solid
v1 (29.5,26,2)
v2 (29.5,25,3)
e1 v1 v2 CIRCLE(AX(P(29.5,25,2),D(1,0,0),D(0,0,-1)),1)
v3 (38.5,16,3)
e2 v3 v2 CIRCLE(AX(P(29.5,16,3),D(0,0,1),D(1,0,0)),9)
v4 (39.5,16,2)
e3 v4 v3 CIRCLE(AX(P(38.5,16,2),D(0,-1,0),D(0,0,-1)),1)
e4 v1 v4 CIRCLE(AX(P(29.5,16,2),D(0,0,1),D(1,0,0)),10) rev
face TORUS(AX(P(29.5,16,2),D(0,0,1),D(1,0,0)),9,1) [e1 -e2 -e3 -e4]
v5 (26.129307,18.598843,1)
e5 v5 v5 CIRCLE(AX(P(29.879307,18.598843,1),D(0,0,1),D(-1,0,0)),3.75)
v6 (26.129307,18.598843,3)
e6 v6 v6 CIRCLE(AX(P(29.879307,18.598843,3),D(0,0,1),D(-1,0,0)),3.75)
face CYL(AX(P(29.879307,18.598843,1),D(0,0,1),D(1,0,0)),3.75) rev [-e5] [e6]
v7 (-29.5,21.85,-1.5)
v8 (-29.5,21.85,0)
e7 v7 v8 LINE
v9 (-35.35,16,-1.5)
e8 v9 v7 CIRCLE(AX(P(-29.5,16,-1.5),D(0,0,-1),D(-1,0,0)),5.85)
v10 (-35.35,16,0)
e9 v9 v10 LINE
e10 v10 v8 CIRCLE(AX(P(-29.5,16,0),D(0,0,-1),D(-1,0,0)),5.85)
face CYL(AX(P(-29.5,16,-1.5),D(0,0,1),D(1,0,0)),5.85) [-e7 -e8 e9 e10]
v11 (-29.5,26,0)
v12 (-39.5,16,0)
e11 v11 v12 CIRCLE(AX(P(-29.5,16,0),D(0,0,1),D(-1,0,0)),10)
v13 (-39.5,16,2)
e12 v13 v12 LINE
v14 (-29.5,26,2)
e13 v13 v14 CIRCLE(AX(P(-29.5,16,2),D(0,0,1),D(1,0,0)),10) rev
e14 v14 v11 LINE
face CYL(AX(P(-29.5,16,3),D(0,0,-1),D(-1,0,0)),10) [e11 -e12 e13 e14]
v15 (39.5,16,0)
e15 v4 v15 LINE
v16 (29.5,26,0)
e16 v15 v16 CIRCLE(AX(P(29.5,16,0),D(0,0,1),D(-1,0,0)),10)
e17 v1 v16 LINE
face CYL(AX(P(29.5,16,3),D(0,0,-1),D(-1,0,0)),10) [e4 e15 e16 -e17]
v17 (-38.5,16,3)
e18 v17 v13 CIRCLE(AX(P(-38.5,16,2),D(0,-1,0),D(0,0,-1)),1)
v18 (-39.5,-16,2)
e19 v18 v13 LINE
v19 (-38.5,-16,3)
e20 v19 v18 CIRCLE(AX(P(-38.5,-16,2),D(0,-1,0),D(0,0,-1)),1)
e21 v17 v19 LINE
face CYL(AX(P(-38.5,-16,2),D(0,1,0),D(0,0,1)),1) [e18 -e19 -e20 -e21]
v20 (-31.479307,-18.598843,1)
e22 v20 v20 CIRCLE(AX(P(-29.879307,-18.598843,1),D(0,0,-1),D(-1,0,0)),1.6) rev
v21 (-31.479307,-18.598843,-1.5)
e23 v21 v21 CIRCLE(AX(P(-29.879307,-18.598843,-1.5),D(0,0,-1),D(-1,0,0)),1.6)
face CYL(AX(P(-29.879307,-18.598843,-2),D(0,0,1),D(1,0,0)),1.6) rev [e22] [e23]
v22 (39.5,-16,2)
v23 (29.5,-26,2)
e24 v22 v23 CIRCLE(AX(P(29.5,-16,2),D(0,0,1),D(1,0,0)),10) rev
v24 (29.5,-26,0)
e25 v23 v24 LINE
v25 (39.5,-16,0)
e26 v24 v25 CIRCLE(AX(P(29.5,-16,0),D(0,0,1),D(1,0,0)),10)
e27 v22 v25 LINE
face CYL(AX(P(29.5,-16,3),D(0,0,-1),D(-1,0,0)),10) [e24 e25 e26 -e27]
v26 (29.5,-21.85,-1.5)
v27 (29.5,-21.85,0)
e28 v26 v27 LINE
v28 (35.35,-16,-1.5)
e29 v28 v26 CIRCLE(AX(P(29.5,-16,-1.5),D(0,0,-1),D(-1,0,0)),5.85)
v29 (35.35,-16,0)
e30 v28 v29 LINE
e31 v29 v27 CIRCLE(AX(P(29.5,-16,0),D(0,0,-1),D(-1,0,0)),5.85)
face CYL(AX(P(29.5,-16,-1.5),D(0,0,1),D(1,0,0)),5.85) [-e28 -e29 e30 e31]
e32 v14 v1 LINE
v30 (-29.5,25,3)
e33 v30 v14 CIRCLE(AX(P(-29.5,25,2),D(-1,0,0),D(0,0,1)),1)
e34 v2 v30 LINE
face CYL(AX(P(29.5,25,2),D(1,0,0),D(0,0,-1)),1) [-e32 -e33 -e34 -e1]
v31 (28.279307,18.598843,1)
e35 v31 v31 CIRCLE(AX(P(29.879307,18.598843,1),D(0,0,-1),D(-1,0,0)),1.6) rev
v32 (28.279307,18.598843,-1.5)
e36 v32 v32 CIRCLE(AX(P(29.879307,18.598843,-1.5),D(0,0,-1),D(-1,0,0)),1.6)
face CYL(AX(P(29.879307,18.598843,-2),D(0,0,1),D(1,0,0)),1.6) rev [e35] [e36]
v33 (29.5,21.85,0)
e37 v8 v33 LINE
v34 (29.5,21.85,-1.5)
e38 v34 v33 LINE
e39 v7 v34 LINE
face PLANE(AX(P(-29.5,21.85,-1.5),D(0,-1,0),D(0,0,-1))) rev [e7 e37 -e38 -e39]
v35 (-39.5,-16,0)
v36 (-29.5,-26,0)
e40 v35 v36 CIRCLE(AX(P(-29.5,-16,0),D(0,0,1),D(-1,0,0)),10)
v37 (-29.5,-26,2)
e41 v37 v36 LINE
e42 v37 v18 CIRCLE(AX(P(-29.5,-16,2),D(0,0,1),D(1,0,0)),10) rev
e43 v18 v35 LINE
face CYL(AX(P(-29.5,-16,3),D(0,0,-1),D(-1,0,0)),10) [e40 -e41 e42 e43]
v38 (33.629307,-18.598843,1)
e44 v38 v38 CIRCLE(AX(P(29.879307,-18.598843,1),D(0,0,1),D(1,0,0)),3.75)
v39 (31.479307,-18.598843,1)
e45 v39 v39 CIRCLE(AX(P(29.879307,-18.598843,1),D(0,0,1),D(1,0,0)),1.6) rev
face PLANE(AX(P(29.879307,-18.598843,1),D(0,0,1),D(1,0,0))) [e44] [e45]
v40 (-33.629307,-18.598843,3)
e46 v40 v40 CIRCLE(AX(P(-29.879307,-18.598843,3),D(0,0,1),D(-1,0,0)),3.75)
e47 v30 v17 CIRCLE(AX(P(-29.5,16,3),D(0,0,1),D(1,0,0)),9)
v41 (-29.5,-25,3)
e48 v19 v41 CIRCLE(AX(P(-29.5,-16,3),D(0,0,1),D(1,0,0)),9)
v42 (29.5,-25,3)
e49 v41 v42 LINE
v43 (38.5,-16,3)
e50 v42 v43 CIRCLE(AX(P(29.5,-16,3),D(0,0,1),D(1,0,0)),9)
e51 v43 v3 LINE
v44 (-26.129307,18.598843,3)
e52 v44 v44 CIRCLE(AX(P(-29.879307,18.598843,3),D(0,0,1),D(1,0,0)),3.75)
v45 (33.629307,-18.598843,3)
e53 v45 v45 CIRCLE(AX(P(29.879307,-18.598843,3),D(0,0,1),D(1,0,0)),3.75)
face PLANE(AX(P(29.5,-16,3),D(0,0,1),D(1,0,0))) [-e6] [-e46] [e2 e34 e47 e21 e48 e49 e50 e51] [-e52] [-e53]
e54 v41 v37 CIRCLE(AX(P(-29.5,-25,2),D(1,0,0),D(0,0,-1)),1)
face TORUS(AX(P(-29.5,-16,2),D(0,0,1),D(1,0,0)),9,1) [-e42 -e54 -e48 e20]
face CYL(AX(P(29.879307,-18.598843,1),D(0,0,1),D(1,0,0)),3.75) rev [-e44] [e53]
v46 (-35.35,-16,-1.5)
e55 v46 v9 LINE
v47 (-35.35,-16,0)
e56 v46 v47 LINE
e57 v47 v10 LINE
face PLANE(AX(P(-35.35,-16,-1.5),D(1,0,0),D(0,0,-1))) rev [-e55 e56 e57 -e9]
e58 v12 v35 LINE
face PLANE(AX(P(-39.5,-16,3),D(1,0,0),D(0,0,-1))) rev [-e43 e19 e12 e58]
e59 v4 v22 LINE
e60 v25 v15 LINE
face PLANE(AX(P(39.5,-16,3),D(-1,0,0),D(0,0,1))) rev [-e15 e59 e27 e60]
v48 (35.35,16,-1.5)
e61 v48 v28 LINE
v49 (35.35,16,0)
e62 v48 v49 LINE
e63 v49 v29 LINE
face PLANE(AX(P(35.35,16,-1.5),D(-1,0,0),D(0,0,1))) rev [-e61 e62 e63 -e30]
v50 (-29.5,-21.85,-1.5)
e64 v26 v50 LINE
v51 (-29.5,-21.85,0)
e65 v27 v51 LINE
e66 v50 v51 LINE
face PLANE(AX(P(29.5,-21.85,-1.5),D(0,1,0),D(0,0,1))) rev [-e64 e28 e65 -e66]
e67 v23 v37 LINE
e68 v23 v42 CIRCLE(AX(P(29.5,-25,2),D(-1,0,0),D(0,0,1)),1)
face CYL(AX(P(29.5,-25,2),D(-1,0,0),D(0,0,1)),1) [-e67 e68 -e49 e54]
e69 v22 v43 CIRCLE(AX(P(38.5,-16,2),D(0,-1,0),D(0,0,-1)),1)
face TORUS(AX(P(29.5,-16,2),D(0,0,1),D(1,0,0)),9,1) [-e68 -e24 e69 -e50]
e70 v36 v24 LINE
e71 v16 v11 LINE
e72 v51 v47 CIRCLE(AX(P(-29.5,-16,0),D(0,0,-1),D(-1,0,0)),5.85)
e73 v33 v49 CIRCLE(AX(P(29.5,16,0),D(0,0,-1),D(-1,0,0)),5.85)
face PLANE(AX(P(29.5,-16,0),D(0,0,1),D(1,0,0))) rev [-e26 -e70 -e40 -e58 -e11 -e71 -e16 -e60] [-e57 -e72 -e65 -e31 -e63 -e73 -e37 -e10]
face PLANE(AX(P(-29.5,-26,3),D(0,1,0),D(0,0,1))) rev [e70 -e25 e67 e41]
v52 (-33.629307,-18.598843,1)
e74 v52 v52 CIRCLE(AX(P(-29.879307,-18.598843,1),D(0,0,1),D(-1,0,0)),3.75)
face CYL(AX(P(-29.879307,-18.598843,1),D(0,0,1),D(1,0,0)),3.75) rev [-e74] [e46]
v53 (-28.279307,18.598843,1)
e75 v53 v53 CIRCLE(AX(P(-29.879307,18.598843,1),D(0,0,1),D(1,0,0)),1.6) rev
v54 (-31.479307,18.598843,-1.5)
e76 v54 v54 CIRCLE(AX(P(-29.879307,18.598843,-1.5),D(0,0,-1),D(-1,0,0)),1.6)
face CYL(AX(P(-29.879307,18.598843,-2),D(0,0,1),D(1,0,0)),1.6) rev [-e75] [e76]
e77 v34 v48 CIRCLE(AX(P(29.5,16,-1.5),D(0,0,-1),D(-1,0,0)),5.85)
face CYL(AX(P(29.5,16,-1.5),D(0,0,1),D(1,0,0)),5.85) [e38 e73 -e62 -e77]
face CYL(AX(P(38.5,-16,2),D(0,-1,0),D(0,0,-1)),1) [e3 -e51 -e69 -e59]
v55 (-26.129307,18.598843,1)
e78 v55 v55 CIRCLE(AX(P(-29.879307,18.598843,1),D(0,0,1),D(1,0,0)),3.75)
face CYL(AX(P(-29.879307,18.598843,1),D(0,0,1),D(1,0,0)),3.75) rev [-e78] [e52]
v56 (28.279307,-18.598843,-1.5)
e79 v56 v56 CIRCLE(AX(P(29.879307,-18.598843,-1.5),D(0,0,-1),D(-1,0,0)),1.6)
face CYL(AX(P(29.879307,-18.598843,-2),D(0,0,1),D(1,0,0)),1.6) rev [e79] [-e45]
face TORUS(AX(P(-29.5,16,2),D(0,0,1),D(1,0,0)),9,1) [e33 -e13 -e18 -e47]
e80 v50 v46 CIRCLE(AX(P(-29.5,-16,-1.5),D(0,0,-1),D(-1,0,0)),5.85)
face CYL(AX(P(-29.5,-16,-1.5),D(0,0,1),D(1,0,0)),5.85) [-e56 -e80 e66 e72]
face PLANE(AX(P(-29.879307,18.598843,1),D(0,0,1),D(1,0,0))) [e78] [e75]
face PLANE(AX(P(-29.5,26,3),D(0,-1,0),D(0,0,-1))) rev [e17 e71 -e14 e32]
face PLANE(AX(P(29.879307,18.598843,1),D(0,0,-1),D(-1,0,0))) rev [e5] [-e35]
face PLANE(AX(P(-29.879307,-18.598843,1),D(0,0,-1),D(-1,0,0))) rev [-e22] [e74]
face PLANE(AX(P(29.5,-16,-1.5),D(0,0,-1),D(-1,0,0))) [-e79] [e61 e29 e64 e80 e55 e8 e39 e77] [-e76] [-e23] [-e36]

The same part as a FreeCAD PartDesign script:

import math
import FreeCAD as App
import Part
import Sketcher


def edges_at(feature, points):
    """Names of the edges that pass closest to the given points."""
    edges = feature.Shape.Edges
    near = lambda p: min(range(len(edges)), key=lambda i: edges[i].distToShape(Part.Vertex(*p))[0])
    return sorted({f"Edge{near(p) + 1}" for p in points})

doc = App.newDocument("Part")
params = doc.addObject("Spreadsheet::Sheet", "Params")
for row, (alias, value) in enumerate([
    ("sketch1_radius", "10 mm"),
    ("sketch1_width", "59 mm"),
    ("sketch1_height", "32 mm"),
    ("pad1_length", "3 mm"),
    ("sketch2_width", "59 mm"),
    ("sketch2_height", "32 mm"),
    ("sketch2_radius", "5.85 mm"),
    ("pad2_length", "1.5 mm"),
    ("fillet_radius", "1 mm"),
    ("sketch3_diameter", "3.2 mm"),
    ("pocket1_length", "5 mm"),
    ("sketch4_diameter", "7.5 mm"),
    ("pocket2_length", "2 mm"),
], start=1):
    params.set(f"A{row}", alias)
    params.set(f"B{row}", "=" + value)
    params.setAlias(f"B{row}", alias)

body = doc.addObject("PartDesign::Body", "Body")

# Sketch on XY plane
sketch1 = body.newObject("Sketcher::SketchObject", "Sketch")
sketch1.AttachmentSupport = (doc.getObject("XY_Plane"), [""])
sketch1.MapMode = "FlatFace"
sketch1.addGeometry([
    Part.LineSegment(App.Vector(-29.5, -26, 0), App.Vector(29.5, -26, 0)),  # 0
    Part.ArcOfCircle(Part.Circle(App.Vector(29.5, -16, 0), App.Vector(0, 0, 1), 10), math.radians(-90), math.radians(0)),  # 1
    Part.LineSegment(App.Vector(39.5, -16, 0), App.Vector(39.5, 16, 0)),  # 2
    Part.ArcOfCircle(Part.Circle(App.Vector(29.5, 16, 0), App.Vector(0, 0, 1), 10), math.radians(0), math.radians(90)),  # 3
    Part.LineSegment(App.Vector(29.5, 26, 0), App.Vector(-29.5, 26, 0)),  # 4
    Part.ArcOfCircle(Part.Circle(App.Vector(-29.5, 16, 0), App.Vector(0, 0, 1), 10), math.radians(90), math.radians(180)),  # 5
    Part.LineSegment(App.Vector(-39.5, 16, 0), App.Vector(-39.5, -16, 0)),  # 6
    Part.ArcOfCircle(Part.Circle(App.Vector(-29.5, -16, 0), App.Vector(0, 0, 1), 10), math.radians(180), math.radians(270)),  # 7
], False)
sketch1.addConstraint([
    Sketcher.Constraint("Tangent", 0, 2, 1, 1),
    Sketcher.Constraint("Tangent", 1, 2, 2, 1),
    Sketcher.Constraint("Tangent", 2, 2, 3, 1),
    Sketcher.Constraint("Tangent", 3, 2, 4, 1),
    Sketcher.Constraint("Tangent", 4, 2, 5, 1),
    Sketcher.Constraint("Tangent", 5, 2, 6, 1),
    Sketcher.Constraint("Tangent", 6, 2, 7, 1),
    Sketcher.Constraint("Tangent", 7, 2, 0, 1),
    Sketcher.Constraint("Horizontal", 0),
    Sketcher.Constraint("Vertical", 2),
    Sketcher.Constraint("Horizontal", 4),
    Sketcher.Constraint("Vertical", 6),
    Sketcher.Constraint("Equal", 1, 3),
    Sketcher.Constraint("Equal", 3, 5),
    Sketcher.Constraint("Equal", 5, 7),
    Sketcher.Constraint("Symmetric", 1, 3, 5, 3, -1, 1),
    Sketcher.Constraint("Radius", 1, 10.0),
    Sketcher.Constraint("DistanceX", 0, 1, 0, 2, 59.0),
    Sketcher.Constraint("DistanceY", 2, 1, 2, 2, 32.0),
])
sketch1.setExpression("Constraints[16]", "Params.sketch1_radius")
sketch1.setExpression("Constraints[17]", "Params.sketch1_width")
sketch1.setExpression("Constraints[18]", "Params.sketch1_height")
pad1 = body.newObject("PartDesign::Pad", "Pad")
pad1.Profile = sketch1
pad1.setExpression("Length", "Params.pad1_length")

# Sketch on XY plane
sketch2 = body.newObject("Sketcher::SketchObject", "Sketch001")
sketch2.AttachmentSupport = (doc.getObject("XY_Plane"), [""])
sketch2.MapMode = "FlatFace"
sketch2.addGeometry([
    Part.LineSegment(App.Vector(35.35, 16, 0), App.Vector(35.35, -16, 0)),  # 0
    Part.ArcOfCircle(Part.Circle(App.Vector(29.5, -16, 0), App.Vector(0, 0, 1), 5.85), math.radians(-90), math.radians(0)),  # 1
    Part.LineSegment(App.Vector(29.5, -21.85, 0), App.Vector(-29.5, -21.85, 0)),  # 2
    Part.ArcOfCircle(Part.Circle(App.Vector(-29.5, -16, 0), App.Vector(0, 0, 1), 5.85), math.radians(180), math.radians(270)),  # 3
    Part.LineSegment(App.Vector(-35.35, -16, 0), App.Vector(-35.35, 16, 0)),  # 4
    Part.ArcOfCircle(Part.Circle(App.Vector(-29.5, 16, 0), App.Vector(0, 0, 1), 5.85), math.radians(90), math.radians(180)),  # 5
    Part.LineSegment(App.Vector(-29.5, 21.85, 0), App.Vector(29.5, 21.85, 0)),  # 6
    Part.ArcOfCircle(Part.Circle(App.Vector(29.5, 16, 0), App.Vector(0, 0, 1), 5.85), math.radians(0), math.radians(90)),  # 7
], False)
sketch2.addConstraint([
    Sketcher.Constraint("Tangent", 0, 2, 1, 2),
    Sketcher.Constraint("Tangent", 1, 1, 2, 1),
    Sketcher.Constraint("Tangent", 2, 2, 3, 2),
    Sketcher.Constraint("Tangent", 3, 1, 4, 1),
    Sketcher.Constraint("Tangent", 4, 2, 5, 2),
    Sketcher.Constraint("Tangent", 5, 1, 6, 1),
    Sketcher.Constraint("Tangent", 6, 2, 7, 2),
    Sketcher.Constraint("Tangent", 7, 1, 0, 1),
    Sketcher.Constraint("Vertical", 0),
    Sketcher.Constraint("Horizontal", 2),
    Sketcher.Constraint("Vertical", 4),
    Sketcher.Constraint("Horizontal", 6),
    Sketcher.Constraint("Equal", 1, 3),
    Sketcher.Constraint("Equal", 3, 5),
    Sketcher.Constraint("Equal", 5, 7),
    Sketcher.Constraint("Symmetric", 1, 3, 5, 3, -1, 1),
    Sketcher.Constraint("DistanceX", 2, 2, 2, 1, 59.0),
    Sketcher.Constraint("DistanceY", 0, 2, 0, 1, 32.0),
    Sketcher.Constraint("Radius", 1, 5.85),
])
sketch2.setExpression("Constraints[16]", "Params.sketch2_width")
sketch2.setExpression("Constraints[17]", "Params.sketch2_height")
sketch2.setExpression("Constraints[18]", "Params.sketch2_radius")
pad2 = body.newObject("PartDesign::Pad", "Pad001")
pad2.Profile = sketch2
pad2.setExpression("Length", "Params.pad2_length")
pad2.Reversed = True
doc.recompute()

fillet = body.newObject("PartDesign::Fillet", "Fillet")
fillet.Base = (pad2, edges_at(pad2, [
    (36.571, 23.071, 3),
    (0, 26, 3),
    (-36.571, 23.071, 3),
    (-39.5, 0, 3),
    (-36.571, -23.071, 3),
    (0, -26, 3),
    (36.571, -23.071, 3),
    (39.5, 0, 3),
]))
fillet.setExpression("Radius", "Params.fillet_radius")

# Sketch on XY plane
sketch3 = body.newObject("Sketcher::SketchObject", "Sketch002")
sketch3.AttachmentSupport = (doc.getObject("XY_Plane"), [""])
sketch3.MapMode = "FlatFace"
sketch3.AttachmentOffset = App.Placement(App.Vector(0, 0, 3), App.Rotation())
sketch3.addGeometry([
    Part.Circle(App.Vector(29.879307, -18.598843, 0), App.Vector(0, 0, 1), 1.6),
    Part.Circle(App.Vector(-29.879307, -18.598843, 0), App.Vector(0, 0, 1), 1.6),
    Part.Circle(App.Vector(-29.879307, 18.598843, 0), App.Vector(0, 0, 1), 1.6),
    Part.Circle(App.Vector(29.879307, 18.598843, 0), App.Vector(0, 0, 1), 1.6),
], False)
sketch3.addConstraint([
    Sketcher.Constraint("Equal", 0, 1),
    Sketcher.Constraint("Equal", 1, 2),
    Sketcher.Constraint("Equal", 2, 3),
    Sketcher.Constraint("Symmetric", 0, 3, 2, 3, -1, 1),
    Sketcher.Constraint("Symmetric", 1, 3, 3, 3, -1, 1),
    Sketcher.Constraint("Symmetric", 0, 3, 1, 3, -2),
    Sketcher.Constraint("Diameter", 0, 3.2),
    Sketcher.Constraint("DistanceX", -1, 1, 0, 3, 29.879307),
    Sketcher.Constraint("DistanceY", 0, 3, -1, 1, 18.598843),
])
sketch3.setExpression("Constraints[6]", "Params.sketch3_diameter")
pocket1 = body.newObject("PartDesign::Pocket", "Pocket")
pocket1.Profile = sketch3
pocket1.setExpression("Length", "Params.pocket1_length")

# Sketch on XY plane
sketch4 = body.newObject("Sketcher::SketchObject", "Sketch003")
sketch4.AttachmentSupport = (doc.getObject("XY_Plane"), [""])
sketch4.MapMode = "FlatFace"
sketch4.AttachmentOffset = App.Placement(App.Vector(0, 0, 3), App.Rotation())
sketch4.addGeometry([
    Part.Circle(App.Vector(29.879307, -18.598843, 0), App.Vector(0, 0, 1), 3.75),
    Part.Circle(App.Vector(-29.879307, -18.598843, 0), App.Vector(0, 0, 1), 3.75),
    Part.Circle(App.Vector(-29.879307, 18.598843, 0), App.Vector(0, 0, 1), 3.75),
    Part.Circle(App.Vector(29.879307, 18.598843, 0), App.Vector(0, 0, 1), 3.75),
], False)
sketch4.addConstraint([
    Sketcher.Constraint("Equal", 0, 1),
    Sketcher.Constraint("Equal", 1, 2),
    Sketcher.Constraint("Equal", 2, 3),
    Sketcher.Constraint("Symmetric", 0, 3, 2, 3, -1, 1),
    Sketcher.Constraint("Symmetric", 1, 3, 3, 3, -1, 1),
    Sketcher.Constraint("Symmetric", 0, 3, 1, 3, -2),
    Sketcher.Constraint("Diameter", 0, 7.5),
    Sketcher.Constraint("DistanceX", -1, 1, 0, 3, 29.879307),
    Sketcher.Constraint("DistanceY", 0, 3, -1, 1, 18.598843),
])
sketch4.setExpression("Constraints[6]", "Params.sketch4_diameter")
pocket2 = body.newObject("PartDesign::Pocket", "Pocket001")
pocket2.Profile = sketch4
pocket2.setExpression("Length", "Params.pocket2_length")

doc.recompute()
